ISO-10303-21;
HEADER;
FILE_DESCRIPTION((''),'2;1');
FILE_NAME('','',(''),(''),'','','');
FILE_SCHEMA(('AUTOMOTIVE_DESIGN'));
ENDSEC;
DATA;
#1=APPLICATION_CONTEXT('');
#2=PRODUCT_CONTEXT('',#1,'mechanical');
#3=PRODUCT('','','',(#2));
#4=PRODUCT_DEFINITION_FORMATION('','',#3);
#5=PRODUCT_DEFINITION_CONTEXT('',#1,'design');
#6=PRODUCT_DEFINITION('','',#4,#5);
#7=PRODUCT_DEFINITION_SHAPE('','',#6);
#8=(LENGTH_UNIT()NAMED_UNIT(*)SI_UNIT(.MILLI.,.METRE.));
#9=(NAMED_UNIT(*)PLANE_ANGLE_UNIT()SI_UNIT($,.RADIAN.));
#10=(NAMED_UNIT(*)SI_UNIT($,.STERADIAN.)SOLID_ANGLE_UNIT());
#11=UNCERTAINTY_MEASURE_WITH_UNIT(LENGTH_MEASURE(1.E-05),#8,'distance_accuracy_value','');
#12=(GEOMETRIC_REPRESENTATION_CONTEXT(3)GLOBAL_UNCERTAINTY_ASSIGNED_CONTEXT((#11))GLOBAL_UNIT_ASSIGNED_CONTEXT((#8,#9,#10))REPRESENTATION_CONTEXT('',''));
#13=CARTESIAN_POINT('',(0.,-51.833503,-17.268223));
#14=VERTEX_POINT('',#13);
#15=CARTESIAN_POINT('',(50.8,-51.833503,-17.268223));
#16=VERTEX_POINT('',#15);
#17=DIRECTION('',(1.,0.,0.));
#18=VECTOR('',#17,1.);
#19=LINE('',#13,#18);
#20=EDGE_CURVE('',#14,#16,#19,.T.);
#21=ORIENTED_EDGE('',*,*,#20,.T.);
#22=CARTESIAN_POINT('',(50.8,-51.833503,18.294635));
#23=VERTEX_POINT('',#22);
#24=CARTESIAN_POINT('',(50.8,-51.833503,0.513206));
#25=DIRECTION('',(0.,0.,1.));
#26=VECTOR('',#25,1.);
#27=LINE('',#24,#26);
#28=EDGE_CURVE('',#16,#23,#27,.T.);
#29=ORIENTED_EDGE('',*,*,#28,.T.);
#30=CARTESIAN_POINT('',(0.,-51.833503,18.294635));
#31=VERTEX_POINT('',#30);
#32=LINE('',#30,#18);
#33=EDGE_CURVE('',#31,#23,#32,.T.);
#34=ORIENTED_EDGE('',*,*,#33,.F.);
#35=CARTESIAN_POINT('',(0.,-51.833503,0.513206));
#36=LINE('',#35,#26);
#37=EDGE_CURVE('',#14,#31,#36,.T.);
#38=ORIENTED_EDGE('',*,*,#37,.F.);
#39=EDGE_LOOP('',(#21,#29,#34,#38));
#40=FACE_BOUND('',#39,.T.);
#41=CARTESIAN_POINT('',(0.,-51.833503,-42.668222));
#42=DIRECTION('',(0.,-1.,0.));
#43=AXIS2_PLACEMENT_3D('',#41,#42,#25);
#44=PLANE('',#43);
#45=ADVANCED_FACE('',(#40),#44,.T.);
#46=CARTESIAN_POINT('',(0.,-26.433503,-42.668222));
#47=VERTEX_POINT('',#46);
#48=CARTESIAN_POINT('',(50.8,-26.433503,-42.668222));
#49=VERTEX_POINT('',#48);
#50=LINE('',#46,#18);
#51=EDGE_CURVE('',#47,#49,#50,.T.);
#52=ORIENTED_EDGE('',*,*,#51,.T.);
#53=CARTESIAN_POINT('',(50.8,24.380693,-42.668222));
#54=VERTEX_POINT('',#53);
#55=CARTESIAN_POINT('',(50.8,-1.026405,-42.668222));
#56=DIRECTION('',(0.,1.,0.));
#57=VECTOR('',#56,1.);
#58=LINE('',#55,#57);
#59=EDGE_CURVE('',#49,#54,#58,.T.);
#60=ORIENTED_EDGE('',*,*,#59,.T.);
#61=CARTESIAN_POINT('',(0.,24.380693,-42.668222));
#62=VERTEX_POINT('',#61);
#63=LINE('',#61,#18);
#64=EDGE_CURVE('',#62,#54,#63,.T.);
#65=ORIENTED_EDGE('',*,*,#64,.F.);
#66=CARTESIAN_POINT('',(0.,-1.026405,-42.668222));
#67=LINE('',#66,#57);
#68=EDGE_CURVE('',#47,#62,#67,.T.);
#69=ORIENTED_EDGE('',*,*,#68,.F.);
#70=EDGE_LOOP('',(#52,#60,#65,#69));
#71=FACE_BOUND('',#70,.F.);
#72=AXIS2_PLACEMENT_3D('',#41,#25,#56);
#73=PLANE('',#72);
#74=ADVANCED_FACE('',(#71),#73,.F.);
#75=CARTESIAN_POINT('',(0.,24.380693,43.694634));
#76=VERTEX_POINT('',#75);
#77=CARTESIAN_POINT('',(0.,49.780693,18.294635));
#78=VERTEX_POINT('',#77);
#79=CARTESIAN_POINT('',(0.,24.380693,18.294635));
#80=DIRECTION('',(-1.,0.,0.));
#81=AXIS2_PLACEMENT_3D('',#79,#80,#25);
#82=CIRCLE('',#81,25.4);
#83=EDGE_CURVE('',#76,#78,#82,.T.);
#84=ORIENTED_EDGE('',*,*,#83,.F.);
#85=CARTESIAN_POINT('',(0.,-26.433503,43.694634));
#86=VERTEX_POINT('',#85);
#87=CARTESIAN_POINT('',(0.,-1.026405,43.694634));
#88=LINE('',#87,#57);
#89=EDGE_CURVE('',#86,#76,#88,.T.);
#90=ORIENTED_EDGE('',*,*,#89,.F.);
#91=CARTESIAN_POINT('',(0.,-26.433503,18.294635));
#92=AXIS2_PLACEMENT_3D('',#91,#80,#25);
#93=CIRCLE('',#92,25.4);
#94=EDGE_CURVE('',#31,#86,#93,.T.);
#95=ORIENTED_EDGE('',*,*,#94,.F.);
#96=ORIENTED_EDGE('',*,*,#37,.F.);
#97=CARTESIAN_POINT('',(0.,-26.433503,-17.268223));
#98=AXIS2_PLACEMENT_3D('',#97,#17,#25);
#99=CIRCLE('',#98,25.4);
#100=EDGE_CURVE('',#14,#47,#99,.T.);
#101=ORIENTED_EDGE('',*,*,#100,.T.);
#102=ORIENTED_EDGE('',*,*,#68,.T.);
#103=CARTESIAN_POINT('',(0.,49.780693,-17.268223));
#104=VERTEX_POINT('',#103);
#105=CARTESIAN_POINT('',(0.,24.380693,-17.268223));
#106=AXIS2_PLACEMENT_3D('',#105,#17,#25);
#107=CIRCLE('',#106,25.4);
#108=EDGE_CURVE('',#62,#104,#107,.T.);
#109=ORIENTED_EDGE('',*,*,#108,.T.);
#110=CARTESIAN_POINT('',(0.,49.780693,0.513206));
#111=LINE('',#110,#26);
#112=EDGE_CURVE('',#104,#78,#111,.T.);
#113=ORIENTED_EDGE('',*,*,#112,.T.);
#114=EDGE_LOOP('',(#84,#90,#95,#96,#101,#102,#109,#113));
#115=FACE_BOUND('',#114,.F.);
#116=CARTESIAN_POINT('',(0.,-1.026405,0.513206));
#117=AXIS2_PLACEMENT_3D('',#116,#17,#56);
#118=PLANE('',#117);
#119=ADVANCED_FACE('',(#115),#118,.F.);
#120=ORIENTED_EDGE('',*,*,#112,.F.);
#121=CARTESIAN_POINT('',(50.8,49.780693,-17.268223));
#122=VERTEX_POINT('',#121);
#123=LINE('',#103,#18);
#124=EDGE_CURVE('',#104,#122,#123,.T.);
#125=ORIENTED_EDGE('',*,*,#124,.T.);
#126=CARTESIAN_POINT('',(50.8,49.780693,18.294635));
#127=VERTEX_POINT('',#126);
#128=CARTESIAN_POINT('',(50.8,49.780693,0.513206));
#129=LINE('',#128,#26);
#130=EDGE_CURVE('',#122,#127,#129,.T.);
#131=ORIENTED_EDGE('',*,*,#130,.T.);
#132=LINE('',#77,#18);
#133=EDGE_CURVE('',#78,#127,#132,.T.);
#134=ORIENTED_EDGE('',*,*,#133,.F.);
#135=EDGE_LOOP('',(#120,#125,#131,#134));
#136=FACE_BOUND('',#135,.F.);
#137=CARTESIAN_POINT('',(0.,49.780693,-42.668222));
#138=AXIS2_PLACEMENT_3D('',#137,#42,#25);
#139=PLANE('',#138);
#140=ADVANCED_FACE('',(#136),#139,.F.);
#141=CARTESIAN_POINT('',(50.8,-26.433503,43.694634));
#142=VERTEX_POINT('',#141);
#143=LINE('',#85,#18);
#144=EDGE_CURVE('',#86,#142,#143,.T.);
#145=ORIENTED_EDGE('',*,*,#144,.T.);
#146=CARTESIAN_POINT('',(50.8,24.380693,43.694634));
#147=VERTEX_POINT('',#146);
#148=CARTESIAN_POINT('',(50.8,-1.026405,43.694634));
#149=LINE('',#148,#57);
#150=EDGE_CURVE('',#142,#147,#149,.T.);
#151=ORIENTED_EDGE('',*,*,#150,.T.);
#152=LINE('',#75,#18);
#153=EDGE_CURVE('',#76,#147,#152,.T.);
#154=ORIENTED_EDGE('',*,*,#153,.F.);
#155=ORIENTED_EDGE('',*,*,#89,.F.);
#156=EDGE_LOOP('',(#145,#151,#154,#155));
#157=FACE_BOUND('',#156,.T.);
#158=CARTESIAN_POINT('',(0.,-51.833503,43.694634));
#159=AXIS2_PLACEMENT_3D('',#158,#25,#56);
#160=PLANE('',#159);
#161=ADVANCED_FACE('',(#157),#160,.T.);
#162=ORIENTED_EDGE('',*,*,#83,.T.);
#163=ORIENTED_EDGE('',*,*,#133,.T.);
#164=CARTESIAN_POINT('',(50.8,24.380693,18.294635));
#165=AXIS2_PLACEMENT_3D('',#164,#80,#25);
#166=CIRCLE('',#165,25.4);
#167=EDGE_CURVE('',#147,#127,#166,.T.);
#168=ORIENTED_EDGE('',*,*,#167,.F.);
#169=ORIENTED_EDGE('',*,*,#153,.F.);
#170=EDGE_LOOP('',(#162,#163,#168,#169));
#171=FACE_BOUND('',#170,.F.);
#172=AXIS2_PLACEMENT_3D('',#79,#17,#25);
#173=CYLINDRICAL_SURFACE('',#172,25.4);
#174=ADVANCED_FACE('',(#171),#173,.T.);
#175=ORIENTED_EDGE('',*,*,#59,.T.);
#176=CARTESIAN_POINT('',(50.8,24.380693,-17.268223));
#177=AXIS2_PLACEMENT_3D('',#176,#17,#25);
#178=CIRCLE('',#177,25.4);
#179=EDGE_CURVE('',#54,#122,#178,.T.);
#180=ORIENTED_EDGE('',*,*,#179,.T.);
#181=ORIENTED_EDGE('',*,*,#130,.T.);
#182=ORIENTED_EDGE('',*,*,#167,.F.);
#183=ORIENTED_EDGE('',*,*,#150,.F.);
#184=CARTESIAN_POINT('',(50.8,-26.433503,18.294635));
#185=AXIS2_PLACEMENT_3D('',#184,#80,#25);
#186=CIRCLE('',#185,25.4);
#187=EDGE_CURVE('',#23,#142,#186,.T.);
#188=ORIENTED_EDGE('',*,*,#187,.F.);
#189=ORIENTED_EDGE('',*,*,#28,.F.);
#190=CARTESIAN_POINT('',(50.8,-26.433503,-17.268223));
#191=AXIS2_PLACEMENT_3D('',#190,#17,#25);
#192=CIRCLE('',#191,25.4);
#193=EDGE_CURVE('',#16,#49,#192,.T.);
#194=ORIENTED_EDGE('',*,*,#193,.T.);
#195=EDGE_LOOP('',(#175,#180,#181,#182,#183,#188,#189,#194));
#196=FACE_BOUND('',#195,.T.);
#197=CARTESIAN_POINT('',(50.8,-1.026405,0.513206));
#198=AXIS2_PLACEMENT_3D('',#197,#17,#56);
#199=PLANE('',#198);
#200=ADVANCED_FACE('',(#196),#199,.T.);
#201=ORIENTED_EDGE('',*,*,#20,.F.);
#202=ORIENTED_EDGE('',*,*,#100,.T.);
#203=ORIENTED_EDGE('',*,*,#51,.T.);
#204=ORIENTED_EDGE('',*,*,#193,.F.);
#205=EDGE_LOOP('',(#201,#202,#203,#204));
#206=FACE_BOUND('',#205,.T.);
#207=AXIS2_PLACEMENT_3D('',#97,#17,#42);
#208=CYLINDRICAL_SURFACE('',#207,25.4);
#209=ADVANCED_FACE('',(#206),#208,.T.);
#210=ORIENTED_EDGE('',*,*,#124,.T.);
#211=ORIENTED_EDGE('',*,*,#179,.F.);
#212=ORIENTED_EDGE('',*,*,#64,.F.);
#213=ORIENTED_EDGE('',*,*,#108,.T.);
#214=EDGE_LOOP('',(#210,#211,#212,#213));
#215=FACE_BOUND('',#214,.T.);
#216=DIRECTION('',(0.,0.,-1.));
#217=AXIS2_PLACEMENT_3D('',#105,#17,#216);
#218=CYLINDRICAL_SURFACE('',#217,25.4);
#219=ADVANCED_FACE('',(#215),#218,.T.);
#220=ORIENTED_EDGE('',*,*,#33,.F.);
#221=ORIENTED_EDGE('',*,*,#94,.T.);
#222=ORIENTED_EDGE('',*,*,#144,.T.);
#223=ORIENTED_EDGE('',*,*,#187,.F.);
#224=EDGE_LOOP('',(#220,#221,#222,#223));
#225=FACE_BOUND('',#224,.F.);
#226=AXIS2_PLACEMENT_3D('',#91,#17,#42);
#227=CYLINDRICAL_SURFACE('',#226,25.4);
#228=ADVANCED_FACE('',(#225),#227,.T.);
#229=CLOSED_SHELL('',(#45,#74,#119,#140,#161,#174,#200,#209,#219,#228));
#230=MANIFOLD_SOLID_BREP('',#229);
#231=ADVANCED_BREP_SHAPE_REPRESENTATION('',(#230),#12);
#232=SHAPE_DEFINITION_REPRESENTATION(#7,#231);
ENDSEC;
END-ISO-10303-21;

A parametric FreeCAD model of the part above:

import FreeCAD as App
import Part
import Sketcher
Q = App.Units.Quantity


def edges_at(feature, points):
    """Names of the edges that pass closest to the given points."""
    edges = feature.Shape.Edges
    near = lambda p: min(range(len(edges)), key=lambda i: edges[i].distToShape(Part.Vertex(*p))[0])
    return sorted({f"Edge{near(p) + 1}" for p in points})


def add_polygon(sketch, points):
    """Adds a closed chain of lines whose ends are joined by coincident constraints."""
    first, n = sketch.GeometryCount, len(points)
    for a, b in zip(points, points[1:] + points[:1]):
        sketch.addGeometry(Part.LineSegment(App.Vector(*a, 0), App.Vector(*b, 0)), False)
    for i in range(n):
        sketch.addConstraint(Sketcher.Constraint("Coincident", first + i, 2, first + (i + 1) % n, 1))

doc = App.newDocument("Part")
params = doc.addObject("Spreadsheet::Sheet", "Params")
for row, (alias, value) in enumerate([
    ("pad1_length", "2 in"),
    ("fillet_radius", "1 in"),
    ("fillet2_radius", "1 in"),
], start=1):
    params.set(f"A{row}", alias)
    params.set(f"B{row}", "=" + value)
    params.setAlias(f"B{row}", alias)

body = doc.addObject("PartDesign::Body", "Body")

sketch1 = body.newObject("Sketcher::SketchObject", "Sketch")
sketch1.AttachmentSupport = (doc.getObject("YZ_Plane"), [""])
sketch1.MapMode = "FlatFace"
add_polygon(sketch1, [(-52, 44), (-52, -43), (50, -43), (50, 44)])
sketch1.addConstraint(Sketcher.Constraint("Vertical", 0))
sketch1.addConstraint(Sketcher.Constraint("Horizontal", 1))
sketch1.addConstraint(Sketcher.Constraint("Vertical", 2))
sketch1.addConstraint(Sketcher.Constraint("Horizontal", 3))
sketch1.addConstraint(Sketcher.Constraint("DistanceX", 1, 1, 1, 2, Q("101.614196 mm")))
sketch1.addConstraint(Sketcher.Constraint("DistanceY", 0, 2, 0, 1, Q("86.362857 mm")))
sketch1.addConstraint(Sketcher.Constraint("DistanceX", 0, 2, -1, 1, Q("51.833503 mm")))
sketch1.addConstraint(Sketcher.Constraint("DistanceY", 0, 2, -1, 1, Q("42.668222 mm")))
pad1 = body.newObject("PartDesign::Pad", "Pad")
pad1.Profile = sketch1
pad1.setExpression("Length", "Params.pad1_length")
doc.recompute()

fillet = body.newObject("PartDesign::Fillet", "Fillet")
fillet.Base = (pad1, edges_at(pad1, [(25.4, -51.834, 43.695)]))
fillet.setExpression("Radius", "Params.fillet_radius")
doc.recompute()

fillet2 = body.newObject("PartDesign::Fillet", "Fillet001")
fillet2.Base = (fillet, edges_at(fillet, [(25.4, 49.781, 43.695), (25.4, -51.834, -42.668), (25.4, 49.781, -42.668)]))
fillet2.setExpression("Radius", "Params.fillet2_radius")

doc.recompute()
